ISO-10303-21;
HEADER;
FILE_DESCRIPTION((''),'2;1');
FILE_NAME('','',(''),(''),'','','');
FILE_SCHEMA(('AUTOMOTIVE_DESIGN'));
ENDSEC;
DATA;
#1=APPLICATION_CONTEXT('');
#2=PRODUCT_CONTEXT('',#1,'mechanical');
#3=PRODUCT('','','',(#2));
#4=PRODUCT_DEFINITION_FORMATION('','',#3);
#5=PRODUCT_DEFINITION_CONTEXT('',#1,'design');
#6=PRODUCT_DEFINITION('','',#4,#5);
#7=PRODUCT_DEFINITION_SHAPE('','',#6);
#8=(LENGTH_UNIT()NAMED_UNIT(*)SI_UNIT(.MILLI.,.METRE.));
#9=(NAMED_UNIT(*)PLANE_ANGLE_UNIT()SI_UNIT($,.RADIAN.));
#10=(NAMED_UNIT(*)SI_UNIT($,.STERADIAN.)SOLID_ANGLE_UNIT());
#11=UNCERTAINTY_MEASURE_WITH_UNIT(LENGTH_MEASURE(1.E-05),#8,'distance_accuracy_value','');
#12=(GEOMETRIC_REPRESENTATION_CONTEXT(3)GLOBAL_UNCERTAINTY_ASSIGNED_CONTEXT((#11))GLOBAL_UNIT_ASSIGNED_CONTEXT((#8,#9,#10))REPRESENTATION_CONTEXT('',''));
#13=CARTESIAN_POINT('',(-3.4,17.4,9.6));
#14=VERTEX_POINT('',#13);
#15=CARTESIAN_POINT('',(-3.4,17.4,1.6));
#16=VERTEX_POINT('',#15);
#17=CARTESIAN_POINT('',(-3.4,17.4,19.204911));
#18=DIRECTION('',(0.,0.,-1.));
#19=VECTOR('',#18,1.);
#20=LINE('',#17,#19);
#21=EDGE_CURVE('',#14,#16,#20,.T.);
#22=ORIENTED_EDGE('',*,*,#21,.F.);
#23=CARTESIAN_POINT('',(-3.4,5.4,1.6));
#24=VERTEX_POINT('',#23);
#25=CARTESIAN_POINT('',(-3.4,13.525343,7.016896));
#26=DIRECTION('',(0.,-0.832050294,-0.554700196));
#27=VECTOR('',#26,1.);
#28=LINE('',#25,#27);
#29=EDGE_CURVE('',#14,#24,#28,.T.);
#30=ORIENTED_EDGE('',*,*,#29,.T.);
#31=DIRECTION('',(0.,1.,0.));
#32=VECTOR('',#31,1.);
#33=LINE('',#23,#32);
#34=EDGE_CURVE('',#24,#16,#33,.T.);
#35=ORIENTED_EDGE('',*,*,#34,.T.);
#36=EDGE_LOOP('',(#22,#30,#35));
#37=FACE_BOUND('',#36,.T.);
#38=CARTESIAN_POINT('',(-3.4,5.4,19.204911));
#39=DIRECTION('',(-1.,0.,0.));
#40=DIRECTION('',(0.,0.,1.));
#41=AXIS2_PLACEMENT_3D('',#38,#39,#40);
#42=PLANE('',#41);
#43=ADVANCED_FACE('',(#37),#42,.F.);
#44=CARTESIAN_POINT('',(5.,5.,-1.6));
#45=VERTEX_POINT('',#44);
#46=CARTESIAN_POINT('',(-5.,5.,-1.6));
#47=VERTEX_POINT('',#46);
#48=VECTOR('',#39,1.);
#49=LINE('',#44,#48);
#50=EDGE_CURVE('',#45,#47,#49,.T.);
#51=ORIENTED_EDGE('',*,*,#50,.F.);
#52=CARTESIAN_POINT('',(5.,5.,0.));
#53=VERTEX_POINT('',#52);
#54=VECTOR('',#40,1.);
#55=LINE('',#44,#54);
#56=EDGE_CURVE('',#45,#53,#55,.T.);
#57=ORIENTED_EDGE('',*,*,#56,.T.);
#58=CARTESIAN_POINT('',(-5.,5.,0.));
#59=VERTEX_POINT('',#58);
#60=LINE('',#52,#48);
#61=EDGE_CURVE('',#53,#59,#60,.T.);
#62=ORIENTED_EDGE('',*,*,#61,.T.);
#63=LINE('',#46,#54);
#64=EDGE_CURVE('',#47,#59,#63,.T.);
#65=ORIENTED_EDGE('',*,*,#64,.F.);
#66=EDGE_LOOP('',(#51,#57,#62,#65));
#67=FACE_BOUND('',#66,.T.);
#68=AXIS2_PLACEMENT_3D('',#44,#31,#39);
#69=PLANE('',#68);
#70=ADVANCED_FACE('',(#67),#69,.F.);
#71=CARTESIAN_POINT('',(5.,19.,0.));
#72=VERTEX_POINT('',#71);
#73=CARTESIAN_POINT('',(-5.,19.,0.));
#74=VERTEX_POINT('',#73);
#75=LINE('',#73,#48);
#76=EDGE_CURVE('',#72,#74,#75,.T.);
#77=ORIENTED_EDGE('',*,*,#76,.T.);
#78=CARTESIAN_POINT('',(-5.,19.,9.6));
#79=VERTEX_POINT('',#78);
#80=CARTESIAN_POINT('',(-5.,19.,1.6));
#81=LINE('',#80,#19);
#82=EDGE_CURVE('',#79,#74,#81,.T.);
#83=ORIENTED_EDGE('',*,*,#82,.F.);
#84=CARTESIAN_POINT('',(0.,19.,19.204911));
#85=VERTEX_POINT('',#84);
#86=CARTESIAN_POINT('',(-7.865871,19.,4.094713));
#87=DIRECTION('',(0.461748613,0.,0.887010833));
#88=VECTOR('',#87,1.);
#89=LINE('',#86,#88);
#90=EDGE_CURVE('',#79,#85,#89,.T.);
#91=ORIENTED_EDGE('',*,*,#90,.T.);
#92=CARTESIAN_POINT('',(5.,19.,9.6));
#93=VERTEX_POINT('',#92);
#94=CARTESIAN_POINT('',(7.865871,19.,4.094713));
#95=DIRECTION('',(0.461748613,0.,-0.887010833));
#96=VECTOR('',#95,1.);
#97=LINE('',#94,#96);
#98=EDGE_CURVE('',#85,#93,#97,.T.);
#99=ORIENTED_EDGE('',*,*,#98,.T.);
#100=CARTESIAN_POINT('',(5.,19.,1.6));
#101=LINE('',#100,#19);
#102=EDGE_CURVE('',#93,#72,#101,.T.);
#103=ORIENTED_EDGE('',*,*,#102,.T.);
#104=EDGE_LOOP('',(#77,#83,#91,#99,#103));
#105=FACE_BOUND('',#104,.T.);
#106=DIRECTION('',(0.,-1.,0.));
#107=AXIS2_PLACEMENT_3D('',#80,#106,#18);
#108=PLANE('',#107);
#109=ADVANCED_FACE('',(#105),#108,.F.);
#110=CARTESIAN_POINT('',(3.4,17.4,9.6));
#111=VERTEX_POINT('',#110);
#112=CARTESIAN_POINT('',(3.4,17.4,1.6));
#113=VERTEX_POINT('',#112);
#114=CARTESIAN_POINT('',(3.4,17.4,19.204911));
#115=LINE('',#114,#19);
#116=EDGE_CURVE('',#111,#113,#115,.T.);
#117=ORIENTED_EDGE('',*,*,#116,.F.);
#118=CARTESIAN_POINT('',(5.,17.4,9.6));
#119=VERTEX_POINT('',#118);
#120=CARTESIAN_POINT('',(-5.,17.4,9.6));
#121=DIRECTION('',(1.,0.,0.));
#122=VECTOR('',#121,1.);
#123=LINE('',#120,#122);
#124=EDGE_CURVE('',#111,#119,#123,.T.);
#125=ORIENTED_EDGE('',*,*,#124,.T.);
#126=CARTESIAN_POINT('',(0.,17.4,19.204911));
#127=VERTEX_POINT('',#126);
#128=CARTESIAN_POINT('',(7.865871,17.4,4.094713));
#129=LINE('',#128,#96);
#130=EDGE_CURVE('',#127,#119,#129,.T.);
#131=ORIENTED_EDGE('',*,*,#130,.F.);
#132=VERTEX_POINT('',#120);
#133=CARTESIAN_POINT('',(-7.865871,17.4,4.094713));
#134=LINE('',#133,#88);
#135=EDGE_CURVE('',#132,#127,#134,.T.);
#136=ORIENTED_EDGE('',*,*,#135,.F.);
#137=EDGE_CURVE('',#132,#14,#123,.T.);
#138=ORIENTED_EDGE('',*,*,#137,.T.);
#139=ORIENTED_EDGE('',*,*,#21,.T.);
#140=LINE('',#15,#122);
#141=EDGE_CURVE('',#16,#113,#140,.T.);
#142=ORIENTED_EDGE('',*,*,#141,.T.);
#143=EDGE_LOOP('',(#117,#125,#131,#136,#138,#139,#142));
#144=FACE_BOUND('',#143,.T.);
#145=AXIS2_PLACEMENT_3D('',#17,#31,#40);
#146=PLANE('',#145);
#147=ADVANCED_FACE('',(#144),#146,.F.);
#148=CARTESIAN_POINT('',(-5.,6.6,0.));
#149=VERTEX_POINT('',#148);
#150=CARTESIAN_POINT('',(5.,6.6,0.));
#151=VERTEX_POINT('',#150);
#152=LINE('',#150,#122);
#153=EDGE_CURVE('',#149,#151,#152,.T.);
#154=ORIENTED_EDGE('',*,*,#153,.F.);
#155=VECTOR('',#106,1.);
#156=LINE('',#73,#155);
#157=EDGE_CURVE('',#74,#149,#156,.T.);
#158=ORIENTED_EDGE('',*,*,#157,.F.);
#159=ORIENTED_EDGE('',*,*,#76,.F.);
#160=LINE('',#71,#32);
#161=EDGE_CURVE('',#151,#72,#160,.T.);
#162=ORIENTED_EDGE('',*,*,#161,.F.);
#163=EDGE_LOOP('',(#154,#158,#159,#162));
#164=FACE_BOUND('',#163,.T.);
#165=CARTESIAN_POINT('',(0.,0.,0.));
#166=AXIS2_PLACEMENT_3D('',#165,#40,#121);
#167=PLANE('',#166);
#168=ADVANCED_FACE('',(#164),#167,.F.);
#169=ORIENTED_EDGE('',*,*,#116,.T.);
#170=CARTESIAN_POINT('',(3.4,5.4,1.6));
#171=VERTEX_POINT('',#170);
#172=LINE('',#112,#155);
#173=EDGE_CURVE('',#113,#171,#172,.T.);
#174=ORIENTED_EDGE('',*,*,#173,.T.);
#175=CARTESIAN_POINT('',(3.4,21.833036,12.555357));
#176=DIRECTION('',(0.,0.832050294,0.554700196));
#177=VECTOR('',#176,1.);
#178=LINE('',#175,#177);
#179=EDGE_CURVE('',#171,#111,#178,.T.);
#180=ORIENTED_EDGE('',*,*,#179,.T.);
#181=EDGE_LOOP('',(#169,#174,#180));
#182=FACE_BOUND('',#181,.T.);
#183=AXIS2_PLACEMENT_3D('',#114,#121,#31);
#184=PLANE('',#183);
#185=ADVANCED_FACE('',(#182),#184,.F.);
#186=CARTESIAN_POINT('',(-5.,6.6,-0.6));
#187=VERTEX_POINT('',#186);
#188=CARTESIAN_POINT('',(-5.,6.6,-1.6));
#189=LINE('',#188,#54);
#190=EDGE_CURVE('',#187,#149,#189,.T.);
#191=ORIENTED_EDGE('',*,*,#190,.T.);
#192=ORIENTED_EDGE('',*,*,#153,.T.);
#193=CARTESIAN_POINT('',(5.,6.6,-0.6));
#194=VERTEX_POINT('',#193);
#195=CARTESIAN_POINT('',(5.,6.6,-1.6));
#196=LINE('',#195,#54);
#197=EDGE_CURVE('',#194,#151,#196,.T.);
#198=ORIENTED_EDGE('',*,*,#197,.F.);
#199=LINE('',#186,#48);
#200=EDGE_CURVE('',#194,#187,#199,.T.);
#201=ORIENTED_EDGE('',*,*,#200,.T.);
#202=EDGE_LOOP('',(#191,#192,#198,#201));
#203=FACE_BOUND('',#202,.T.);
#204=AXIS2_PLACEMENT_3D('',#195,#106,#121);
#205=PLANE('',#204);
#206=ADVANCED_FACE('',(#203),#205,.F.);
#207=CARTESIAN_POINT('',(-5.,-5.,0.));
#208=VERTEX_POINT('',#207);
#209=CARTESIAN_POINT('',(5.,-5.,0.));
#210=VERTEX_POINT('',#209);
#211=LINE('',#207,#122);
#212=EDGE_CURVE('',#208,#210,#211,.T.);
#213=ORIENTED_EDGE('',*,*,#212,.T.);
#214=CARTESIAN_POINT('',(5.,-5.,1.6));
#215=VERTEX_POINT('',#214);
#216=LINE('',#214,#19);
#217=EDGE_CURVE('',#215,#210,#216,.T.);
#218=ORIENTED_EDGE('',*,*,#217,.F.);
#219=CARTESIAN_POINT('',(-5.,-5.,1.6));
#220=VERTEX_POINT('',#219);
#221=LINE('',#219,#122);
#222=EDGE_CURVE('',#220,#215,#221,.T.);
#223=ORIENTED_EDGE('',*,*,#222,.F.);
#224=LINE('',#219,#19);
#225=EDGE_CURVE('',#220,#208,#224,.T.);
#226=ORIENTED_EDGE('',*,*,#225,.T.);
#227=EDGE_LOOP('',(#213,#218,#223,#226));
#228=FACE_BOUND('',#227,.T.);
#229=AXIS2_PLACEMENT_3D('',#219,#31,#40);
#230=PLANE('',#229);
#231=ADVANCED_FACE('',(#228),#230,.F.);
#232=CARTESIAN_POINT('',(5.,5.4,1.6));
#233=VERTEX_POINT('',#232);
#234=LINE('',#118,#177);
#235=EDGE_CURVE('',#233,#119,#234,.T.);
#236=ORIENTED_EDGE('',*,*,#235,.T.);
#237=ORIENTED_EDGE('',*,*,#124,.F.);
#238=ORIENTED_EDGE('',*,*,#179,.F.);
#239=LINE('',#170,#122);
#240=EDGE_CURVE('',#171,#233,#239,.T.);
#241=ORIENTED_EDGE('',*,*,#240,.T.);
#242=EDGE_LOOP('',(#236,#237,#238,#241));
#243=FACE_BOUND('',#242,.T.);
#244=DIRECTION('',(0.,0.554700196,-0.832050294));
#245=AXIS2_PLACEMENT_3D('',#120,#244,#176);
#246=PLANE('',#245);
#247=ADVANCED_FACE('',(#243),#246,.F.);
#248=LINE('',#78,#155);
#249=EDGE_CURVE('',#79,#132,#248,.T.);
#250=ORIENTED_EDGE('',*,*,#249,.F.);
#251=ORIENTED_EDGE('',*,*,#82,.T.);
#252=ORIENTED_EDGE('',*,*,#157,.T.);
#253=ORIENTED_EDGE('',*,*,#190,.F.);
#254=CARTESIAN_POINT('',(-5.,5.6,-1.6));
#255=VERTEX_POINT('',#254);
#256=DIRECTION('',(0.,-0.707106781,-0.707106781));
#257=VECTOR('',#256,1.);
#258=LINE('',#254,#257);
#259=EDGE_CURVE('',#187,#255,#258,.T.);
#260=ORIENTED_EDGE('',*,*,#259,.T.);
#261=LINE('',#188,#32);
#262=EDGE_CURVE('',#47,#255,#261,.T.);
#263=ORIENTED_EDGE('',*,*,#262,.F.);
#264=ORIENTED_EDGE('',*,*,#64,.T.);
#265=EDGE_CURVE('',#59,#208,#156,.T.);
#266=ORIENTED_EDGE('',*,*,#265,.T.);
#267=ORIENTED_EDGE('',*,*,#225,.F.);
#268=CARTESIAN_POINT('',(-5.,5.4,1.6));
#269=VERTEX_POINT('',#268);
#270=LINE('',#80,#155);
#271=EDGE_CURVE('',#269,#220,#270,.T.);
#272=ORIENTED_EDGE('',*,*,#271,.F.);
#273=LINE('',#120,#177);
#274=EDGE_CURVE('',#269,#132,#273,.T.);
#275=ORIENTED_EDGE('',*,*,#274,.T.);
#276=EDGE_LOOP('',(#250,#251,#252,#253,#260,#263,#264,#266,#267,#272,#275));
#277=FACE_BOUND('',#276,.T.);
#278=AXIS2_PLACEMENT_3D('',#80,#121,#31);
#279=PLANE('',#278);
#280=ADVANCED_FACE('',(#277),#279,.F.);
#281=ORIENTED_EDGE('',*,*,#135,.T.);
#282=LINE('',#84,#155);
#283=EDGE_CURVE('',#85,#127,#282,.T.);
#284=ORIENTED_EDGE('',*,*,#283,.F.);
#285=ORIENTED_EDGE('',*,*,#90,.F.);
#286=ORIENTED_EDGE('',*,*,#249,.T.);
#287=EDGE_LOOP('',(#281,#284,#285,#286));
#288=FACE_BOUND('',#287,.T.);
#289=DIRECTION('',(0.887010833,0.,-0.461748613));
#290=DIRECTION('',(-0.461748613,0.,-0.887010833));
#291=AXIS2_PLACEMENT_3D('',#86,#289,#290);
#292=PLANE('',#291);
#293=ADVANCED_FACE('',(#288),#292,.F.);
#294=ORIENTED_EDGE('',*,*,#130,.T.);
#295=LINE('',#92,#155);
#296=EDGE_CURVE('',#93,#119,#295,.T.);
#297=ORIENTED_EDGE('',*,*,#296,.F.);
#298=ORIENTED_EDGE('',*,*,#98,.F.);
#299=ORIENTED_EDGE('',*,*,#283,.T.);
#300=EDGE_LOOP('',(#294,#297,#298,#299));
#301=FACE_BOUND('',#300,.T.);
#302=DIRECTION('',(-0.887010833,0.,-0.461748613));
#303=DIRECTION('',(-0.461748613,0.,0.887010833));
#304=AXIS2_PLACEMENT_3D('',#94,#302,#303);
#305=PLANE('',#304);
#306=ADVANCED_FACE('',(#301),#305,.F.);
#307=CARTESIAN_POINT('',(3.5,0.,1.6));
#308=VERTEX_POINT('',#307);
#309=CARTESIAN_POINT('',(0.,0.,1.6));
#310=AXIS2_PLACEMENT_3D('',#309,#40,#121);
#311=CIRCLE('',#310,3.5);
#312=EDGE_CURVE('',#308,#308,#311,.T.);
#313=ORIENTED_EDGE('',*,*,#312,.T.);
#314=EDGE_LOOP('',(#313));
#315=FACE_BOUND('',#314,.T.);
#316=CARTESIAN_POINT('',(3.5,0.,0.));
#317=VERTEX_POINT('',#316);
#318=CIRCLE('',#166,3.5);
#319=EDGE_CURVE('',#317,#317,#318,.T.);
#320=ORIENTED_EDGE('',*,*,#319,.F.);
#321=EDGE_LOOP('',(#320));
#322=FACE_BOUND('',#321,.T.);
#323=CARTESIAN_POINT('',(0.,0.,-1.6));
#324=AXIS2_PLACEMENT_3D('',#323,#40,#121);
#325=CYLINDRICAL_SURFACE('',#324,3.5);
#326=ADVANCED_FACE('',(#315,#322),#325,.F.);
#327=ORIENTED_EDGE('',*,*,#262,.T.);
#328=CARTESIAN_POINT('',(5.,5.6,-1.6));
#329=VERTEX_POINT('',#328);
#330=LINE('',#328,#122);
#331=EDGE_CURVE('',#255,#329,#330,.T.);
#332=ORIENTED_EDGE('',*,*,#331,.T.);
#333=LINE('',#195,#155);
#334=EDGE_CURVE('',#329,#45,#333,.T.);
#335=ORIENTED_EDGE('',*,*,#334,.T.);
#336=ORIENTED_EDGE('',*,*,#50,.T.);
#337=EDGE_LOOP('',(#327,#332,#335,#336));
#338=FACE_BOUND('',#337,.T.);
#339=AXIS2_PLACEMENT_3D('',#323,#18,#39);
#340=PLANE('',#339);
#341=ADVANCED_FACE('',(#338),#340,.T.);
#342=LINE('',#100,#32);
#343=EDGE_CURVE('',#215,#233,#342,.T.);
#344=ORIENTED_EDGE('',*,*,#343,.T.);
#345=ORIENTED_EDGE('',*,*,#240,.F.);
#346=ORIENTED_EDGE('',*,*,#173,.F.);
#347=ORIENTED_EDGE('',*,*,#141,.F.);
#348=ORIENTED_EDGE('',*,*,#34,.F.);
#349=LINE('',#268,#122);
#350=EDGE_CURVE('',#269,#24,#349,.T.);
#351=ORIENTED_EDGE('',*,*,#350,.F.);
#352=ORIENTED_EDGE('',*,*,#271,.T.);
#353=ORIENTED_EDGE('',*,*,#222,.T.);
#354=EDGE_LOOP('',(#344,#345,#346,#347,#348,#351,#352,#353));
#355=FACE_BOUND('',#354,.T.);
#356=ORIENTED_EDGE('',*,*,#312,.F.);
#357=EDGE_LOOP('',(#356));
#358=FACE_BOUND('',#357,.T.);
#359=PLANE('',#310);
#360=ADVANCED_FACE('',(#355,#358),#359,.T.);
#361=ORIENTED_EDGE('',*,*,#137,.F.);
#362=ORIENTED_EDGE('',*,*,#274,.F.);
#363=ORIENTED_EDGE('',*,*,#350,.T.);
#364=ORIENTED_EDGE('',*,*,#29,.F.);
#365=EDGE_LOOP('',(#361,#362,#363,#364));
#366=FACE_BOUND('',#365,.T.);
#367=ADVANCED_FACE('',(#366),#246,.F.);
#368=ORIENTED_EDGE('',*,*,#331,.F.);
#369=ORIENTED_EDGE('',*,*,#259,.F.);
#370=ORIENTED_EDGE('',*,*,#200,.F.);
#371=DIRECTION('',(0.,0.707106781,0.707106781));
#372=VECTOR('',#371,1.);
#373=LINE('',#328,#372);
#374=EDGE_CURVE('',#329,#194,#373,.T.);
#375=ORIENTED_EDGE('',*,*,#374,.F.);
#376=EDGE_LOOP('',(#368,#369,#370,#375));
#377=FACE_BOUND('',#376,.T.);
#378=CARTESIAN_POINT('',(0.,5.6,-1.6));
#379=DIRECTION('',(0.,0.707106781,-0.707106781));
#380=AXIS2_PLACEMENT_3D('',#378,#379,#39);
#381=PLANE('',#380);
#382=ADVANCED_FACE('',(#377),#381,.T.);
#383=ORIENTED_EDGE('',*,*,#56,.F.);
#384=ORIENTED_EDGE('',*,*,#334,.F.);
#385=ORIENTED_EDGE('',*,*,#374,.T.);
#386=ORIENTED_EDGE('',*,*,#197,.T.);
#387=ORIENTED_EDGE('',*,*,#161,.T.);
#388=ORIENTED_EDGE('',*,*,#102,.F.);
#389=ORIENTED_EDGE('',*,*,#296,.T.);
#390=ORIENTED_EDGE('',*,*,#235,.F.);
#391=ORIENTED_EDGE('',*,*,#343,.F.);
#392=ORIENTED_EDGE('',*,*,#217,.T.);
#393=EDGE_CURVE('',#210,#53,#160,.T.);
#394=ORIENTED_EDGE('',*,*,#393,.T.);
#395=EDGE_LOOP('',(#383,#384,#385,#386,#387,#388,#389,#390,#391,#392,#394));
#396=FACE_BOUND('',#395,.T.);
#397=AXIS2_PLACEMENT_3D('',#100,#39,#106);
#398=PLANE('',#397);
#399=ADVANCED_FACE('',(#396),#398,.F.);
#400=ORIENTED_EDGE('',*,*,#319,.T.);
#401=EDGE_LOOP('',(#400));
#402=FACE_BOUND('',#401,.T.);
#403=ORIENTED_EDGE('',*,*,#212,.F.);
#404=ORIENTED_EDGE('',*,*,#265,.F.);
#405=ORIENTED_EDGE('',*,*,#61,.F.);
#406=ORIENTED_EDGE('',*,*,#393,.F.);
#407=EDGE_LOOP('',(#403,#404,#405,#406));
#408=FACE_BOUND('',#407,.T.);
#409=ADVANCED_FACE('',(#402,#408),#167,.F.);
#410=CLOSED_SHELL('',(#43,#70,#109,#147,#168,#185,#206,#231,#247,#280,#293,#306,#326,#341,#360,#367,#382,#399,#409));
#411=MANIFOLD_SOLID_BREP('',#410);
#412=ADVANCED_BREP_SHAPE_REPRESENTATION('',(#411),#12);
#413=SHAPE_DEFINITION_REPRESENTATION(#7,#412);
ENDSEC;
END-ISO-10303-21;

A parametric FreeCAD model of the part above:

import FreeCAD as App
import Part
import Sketcher
from FreeCAD import Vector
Q = App.Units.Quantity


def edges_at(feature, points):
    """Names of the edges that pass closest to the given points."""
    edges = feature.Shape.Edges
    near = lambda p: min(range(len(edges)), key=lambda i: edges[i].distToShape(Part.Vertex(*p))[0])
    return sorted({f"Edge{near(p) + 1}" for p in points})


def add_polygon(sketch, points):
    """Adds a closed chain of lines whose ends are joined by coincident constraints."""
    first, n = sketch.GeometryCount, len(points)
    for a, b in zip(points, points[1:] + points[:1]):
        sketch.addGeometry(Part.LineSegment(App.Vector(*a, 0), App.Vector(*b, 0)), False)
    for i in range(n):
        sketch.addConstraint(Sketcher.Constraint("Coincident", first + i, 2, first + (i + 1) % n, 1))

doc = App.newDocument("Part")
body = doc.addObject("PartDesign::Body", "Body")

sketch1 = body.newObject("Sketcher::SketchObject", "Sketch")
sketch1.AttachmentSupport = (doc.getObject("XY_Plane"), [""])
sketch1.MapMode = "FlatFace"
add_polygon(sketch1, [(-5, 19), (-5, -5), (5, -5), (5, 19)])
sketch1.addConstraint(Sketcher.Constraint("Vertical", 0))
sketch1.addConstraint(Sketcher.Constraint("Horizontal", 1))
sketch1.addConstraint(Sketcher.Constraint("Vertical", 2))
sketch1.addConstraint(Sketcher.Constraint("Horizontal", 3))
sketch1.addConstraint(Sketcher.Constraint("DistanceX", 1, 1, 1, 2, Q("10 mm")))
sketch1.addConstraint(Sketcher.Constraint("DistanceY", 0, 2, 0, 1, Q("24 mm")))
sketch1.addConstraint(Sketcher.Constraint("DistanceX", 0, 2, -1, 1, Q("5 mm")))
sketch1.addConstraint(Sketcher.Constraint("DistanceY", 0, 2, -1, 1, Q("5 mm")))
pad1 = body.newObject("PartDesign::Pad", "Pad")
pad1.Profile = sketch1
pad1.Length = 1.6

sketch2 = body.newObject("Sketcher::SketchObject", "Sketch001")
sketch2.AttachmentSupport = (doc.getObject("XY_Plane"), [""])
sketch2.MapMode = "FlatFace"
add_polygon(sketch2, [(5, 6.6), (5, 5), (-5, 5), (-5, 6.6)])
sketch2.addConstraint(Sketcher.Constraint("Vertical", 0))
sketch2.addConstraint(Sketcher.Constraint("Horizontal", 1))
sketch2.addConstraint(Sketcher.Constraint("Vertical", 2))
sketch2.addConstraint(Sketcher.Constraint("Horizontal", 3))
sketch2.addConstraint(Sketcher.Constraint("DistanceX", 1, 2, 1, 1, Q("10 mm")))
sketch2.addConstraint(Sketcher.Constraint("DistanceY", 0, 2, 0, 1, Q("1.6 mm")))
sketch2.addConstraint(Sketcher.Constraint("DistanceX", -1, 1, 0, 2, Q("5 mm")))
sketch2.addConstraint(Sketcher.Constraint("DistanceY", -1, 1, 0, 2, Q("5 mm")))
pad2 = body.newObject("PartDesign::Pad", "Pad001")
pad2.Profile = sketch2
pad2.Length = 1.6
pad2.Reversed = True
doc.recompute()

chamfer = body.newObject("PartDesign::Chamfer", "Chamfer")
chamfer.Base = (pad2, edges_at(pad2, [(0, 6.6, -1.6)]))
chamfer.Size = 1

sketch3 = body.newObject("Sketcher::SketchObject", "Sketch002")
sketch3.AttachmentSupport = (doc.getObject("XY_Plane"), [""])
sketch3.MapMode = "FlatFace"
sketch3.AttachmentOffset = App.Placement(Vector(0, 0, 1.6), App.Rotation())
sketch3.addGeometry(Part.Circle(Vector(0, 0, 0), Vector(0, 0, 1), 3.5), False)
sketch3.addConstraint(Sketcher.Constraint("Coincident", 0, 3, -1, 1))
sketch3.addConstraint(Sketcher.Constraint("Diameter", 0, Q("7 mm")))
pocket1 = body.newObject("PartDesign::Pocket", "Pocket")
pocket1.Profile = sketch3
pocket1.Type = "ThroughAll"

sketch4 = body.newObject("Sketcher::SketchObject", "Sketch003")
sketch4.AttachmentSupport = (doc.getObject("XY_Plane"), [""])
sketch4.MapMode = "FlatFace"
sketch4.AttachmentOffset = App.Placement(Vector(0, 0, 1.6), App.Rotation())
add_polygon(sketch4, [(-5, 19), (-5, 5.4), (-3.4, 5.4), (-3.4, 17.4), (3.4, 17.4), (3.4, 5.4), (5, 5.4), (5, 19)])
sketch4.addConstraint(Sketcher.Constraint("Vertical", 0))
sketch4.addConstraint(Sketcher.Constraint("Horizontal", 1))
sketch4.addConstraint(Sketcher.Constraint("Vertical", 2))
sketch4.addConstraint(Sketcher.Constraint("Horizontal", 3))
sketch4.addConstraint(Sketcher.Constraint("Vertical", 4))
sketch4.addConstraint(Sketcher.Constraint("Horizontal", 5))
sketch4.addConstraint(Sketcher.Constraint("Vertical", 6))
sketch4.addConstraint(Sketcher.Constraint("Horizontal", 7))
sketch4.addConstraint(Sketcher.Constraint("Symmetric", 1, 2, 4, 2, -2))
sketch4.addConstraint(Sketcher.Constraint("Equal", 1, 5))
sketch4.addConstraint(Sketcher.Constraint("DistanceX", 7, 2, 7, 1, Q("10 mm")))
sketch4.addConstraint(Sketcher.Constraint("DistanceY", 2, 1, 2, 2, Q("12 mm")))
sketch4.addConstraint(Sketcher.Constraint("DistanceX", 1, 1, 1, 2, Q("1.6 mm")))
sketch4.addConstraint(Sketcher.Constraint("DistanceY", 0, 2, 0, 1, Q("13.6 mm")))
sketch4.addConstraint(Sketcher.Constraint("DistanceY", -1, 1, 6, 2, Q("19 mm")))
pad3 = body.newObject("PartDesign::Pad", "Pad002")
pad3.Profile = sketch4
pad3.Length = 17.604911

sketch5 = body.newObject("Sketcher::SketchObject", "Sketch004")
sketch5.AttachmentSupport = (doc.getObject("YZ_Plane"), [""])
sketch5.MapMode = "FlatFace"
sketch5.AttachmentOffset = App.Placement(Vector(0, 0, 5), App.Rotation())
add_polygon(sketch5, [(5, 19), (5, 2), (17, 10), (17, 19)])
sketch5.addConstraint(Sketcher.Constraint("Vertical", 0))
sketch5.addConstraint(Sketcher.Constraint("Vertical", 2))
sketch5.addConstraint(Sketcher.Constraint("Horizontal", 3))
sketch5.addConstraint(Sketcher.Constraint("DistanceX", 3, 2, 3, 1, Q("12 mm")))
sketch5.addConstraint(Sketcher.Constraint("DistanceY", 0, 2, 1, 2, Q("8 mm")))
sketch5.addConstraint(Sketcher.Constraint("DistanceX", -1, 1, 0, 2, Q("5.4 mm")))
sketch5.addConstraint(Sketcher.Constraint("DistanceY", -1, 1, 0, 2, Q("1.6 mm")))
sketch5.addConstraint(Sketcher.Constraint("DistanceY", 0, 2, 0, 1, Q("17.604911 mm")))
pocket2 = body.newObject("PartDesign::Pocket", "Pocket001")
pocket2.Profile = sketch5
pocket2.Type = "ThroughAll"

sketch6 = body.newObject("Sketcher::SketchObject", "Sketch005")
sketch6.AttachmentSupport = (doc.getObject("XZ_Plane"), [""])
sketch6.MapMode = "FlatFace"
sketch6.AttachmentOffset = App.Placement(Vector(0, 0, -17.4), App.Rotation())
add_polygon(sketch6, [(-5, 19), (-5, 10), (0, 19)])
add_polygon(sketch6, [(5, 19), (0, 19), (5, 10)])
sketch6.addConstraint(Sketcher.Constraint("Vertical", 0))
sketch6.addConstraint(Sketcher.Constraint("Horizontal", 2))
sketch6.addConstraint(Sketcher.Constraint("Horizontal", 3))
sketch6.addConstraint(Sketcher.Constraint("Vertical", 5))
sketch6.addConstraint(Sketcher.Constraint("Coincident", 3, 2, 1, 2))
sketch6.addConstraint(Sketcher.Constraint("Symmetric", 0, 2, 4, 2, -2))
sketch6.addConstraint(Sketcher.Constraint("PointOnObject", 1, 2, -2))
sketch6.addConstraint(Sketcher.Constraint("DistanceX", 2, 2, 2, 1, Q("5 mm")))
sketch6.addConstraint(Sketcher.Constraint("Angle", 1, Q("62.5 deg")))
sketch6.addConstraint(Sketcher.Constraint("DistanceY", -1, 1, 0, 2, Q("9.6 mm")))
pocket3 = body.newObject("PartDesign::Pocket", "Pocket002")
pocket3.Profile = sketch6
pocket3.Type = "ThroughAll"

doc.recompute()
